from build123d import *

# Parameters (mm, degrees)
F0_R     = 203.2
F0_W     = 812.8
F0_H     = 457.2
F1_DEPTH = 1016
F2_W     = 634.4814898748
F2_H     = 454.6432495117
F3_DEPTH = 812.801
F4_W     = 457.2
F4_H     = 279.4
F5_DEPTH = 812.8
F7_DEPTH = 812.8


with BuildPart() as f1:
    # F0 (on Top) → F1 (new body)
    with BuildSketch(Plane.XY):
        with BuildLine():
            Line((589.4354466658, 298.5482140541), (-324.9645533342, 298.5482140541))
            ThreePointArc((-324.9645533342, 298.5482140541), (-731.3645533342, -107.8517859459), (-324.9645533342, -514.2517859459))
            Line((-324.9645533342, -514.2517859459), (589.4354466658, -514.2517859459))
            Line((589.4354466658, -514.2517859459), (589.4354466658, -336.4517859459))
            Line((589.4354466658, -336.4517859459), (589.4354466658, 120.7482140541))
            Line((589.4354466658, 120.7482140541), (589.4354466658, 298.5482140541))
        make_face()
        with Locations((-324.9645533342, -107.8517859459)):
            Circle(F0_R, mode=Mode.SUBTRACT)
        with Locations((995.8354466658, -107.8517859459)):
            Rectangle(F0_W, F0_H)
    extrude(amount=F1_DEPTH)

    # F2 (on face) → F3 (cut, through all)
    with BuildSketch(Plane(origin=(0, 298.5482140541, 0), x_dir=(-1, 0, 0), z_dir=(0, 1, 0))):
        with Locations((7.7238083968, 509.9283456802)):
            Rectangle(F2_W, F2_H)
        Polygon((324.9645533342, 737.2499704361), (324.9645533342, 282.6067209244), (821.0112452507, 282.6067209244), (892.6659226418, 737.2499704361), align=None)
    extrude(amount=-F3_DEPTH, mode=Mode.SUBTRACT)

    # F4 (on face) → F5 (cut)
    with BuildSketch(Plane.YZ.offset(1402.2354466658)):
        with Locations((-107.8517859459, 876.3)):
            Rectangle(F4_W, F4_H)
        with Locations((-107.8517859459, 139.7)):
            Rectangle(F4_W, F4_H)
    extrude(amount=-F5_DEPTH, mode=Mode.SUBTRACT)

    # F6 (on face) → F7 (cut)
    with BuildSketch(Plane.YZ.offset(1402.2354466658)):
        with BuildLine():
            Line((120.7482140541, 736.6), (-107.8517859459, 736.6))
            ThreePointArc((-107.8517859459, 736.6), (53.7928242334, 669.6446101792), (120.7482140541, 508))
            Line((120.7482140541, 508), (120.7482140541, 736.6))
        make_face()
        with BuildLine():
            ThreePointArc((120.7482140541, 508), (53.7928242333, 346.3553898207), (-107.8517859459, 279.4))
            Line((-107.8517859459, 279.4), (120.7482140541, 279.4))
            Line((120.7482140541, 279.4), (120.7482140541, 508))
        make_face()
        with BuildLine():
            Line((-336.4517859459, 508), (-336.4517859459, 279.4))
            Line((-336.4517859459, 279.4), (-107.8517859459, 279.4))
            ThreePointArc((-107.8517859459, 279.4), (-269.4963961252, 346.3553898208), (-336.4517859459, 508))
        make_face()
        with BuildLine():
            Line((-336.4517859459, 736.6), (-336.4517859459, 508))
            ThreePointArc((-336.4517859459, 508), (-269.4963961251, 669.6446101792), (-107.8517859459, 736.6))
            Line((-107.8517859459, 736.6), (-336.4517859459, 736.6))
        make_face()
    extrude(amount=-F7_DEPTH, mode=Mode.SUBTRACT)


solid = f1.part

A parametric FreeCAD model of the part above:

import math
import FreeCAD as App
import Part
import Sketcher

V = App.Vector
Q = App.Units.Quantity

doc = App.newDocument("Part")
body = doc.addObject("PartDesign::Body", "Body")

# Sketch on XY plane
sketch1 = body.newObject("Sketcher::SketchObject", "Sketch")
sketch1.AttachmentSupport = (doc.getObject("XY_Plane"), [""])
sketch1.MapMode = "FlatFace"
sketch1.addGeometry([
    Part.LineSegment(V(589.435447, 298.548214, 0), V(-324.964553, 298.548214, 0)),  # 0
    Part.ArcOfCircle(Part.Circle(V(-324.964553, -107.851786, 0), V(0, 0, 1), 406.4), math.radians(90), math.radians(270)),  # 1
    Part.LineSegment(V(-324.964553, -514.251786, 0), V(589.435447, -514.251786, 0)),  # 2
    Part.LineSegment(V(589.435447, -514.251786, 0), V(589.435447, -336.451786, 0)),  # 3
    Part.LineSegment(V(589.435447, -336.451786, 0), V(1402.235447, -336.451786, 0)),  # 4
    Part.LineSegment(V(1402.235447, -336.451786, 0), V(1402.235447, 120.748214, 0)),  # 5
    Part.LineSegment(V(1402.235447, 120.748214, 0), V(589.435447, 120.748214, 0)),  # 6
    Part.LineSegment(V(589.435447, 120.748214, 0), V(589.435447, 298.548214, 0)),  # 7
    Part.Circle(V(-324.964553, -107.851786, 0), V(0, 0, 1), 203.2),  # 8
], False)
sketch1.addConstraint([
    Sketcher.Constraint("Tangent", 0, 2, 1, 1),
    Sketcher.Constraint("Tangent", 1, 2, 2, 1),
    Sketcher.Constraint("Coincident", 2, 2, 3, 1),
    Sketcher.Constraint("Coincident", 3, 2, 4, 1),
    Sketcher.Constraint("Coincident", 4, 2, 5, 1),
    Sketcher.Constraint("Coincident", 5, 2, 6, 1),
    Sketcher.Constraint("Coincident", 6, 2, 7, 1),
    Sketcher.Constraint("Coincident", 7, 2, 0, 1),
    Sketcher.Constraint("Horizontal", 0),
    Sketcher.Constraint("Horizontal", 2),
    Sketcher.Constraint("Vertical", 3),
    Sketcher.Constraint("Horizontal", 4),
    Sketcher.Constraint("Vertical", 5),
    Sketcher.Constraint("Horizontal", 6),
    Sketcher.Constraint("Vertical", 7),
    Sketcher.Constraint("Coincident", 8, 3, 1, 3),
    Sketcher.Constraint("Vertical", 3, 2, 6, 2),
    Sketcher.Constraint("Equal", 3, 7),
    Sketcher.Constraint("Diameter", 8, Q("16 in")),
    Sketcher.Constraint("Radius", 1, Q("16 in")),
    Sketcher.Constraint("DistanceX", 0, 2, 0, 1, Q("36 in")),
    Sketcher.Constraint("DistanceX", 4, 1, 4, 2, Q("32 in")),
    Sketcher.Constraint("DistanceY", 3, 1, 3, 2, Q("7 in")),
    Sketcher.Constraint("DistanceX", 1, 3, -1, 1, Q("324.964553 mm")),
    Sketcher.Constraint("DistanceY", 1, 3, -1, 1, Q("107.851786 mm")),
])
pad1 = body.newObject("PartDesign::Pad", "Pad")
pad1.Profile = sketch1
pad1.Length = Q("40 in")

# Sketch on XZ plane
sketch2 = body.newObject("Sketcher::SketchObject", "Sketch001")
sketch2.AttachmentSupport = (doc.getObject("XZ_Plane"), [""])
sketch2.MapMode = "FlatFace"
sketch2.AttachmentOffset = App.Placement(V(0, 0, -298.548214), App.Rotation())
sketch2.addGeometry([
    Part.LineSegment(V(309.516937, 737.24997, 0), V(309.516937, 282.606721, 0)),
    Part.LineSegment(V(309.516937, 282.606721, 0), V(-821.011245, 282.606721, 0)),
    Part.LineSegment(V(-821.011245, 282.606721, 0), V(-892.665923, 737.24997, 0)),
    Part.LineSegment(V(-892.665923, 737.24997, 0), V(309.516937, 737.24997, 0)),
], False)
sketch2.addConstraint([
    Sketcher.Constraint("Coincident", 0, 2, 1, 1),
    Sketcher.Constraint("Coincident", 1, 2, 2, 1),
    Sketcher.Constraint("Coincident", 2, 2, 3, 1),
    Sketcher.Constraint("Coincident", 3, 2, 0, 1),
    Sketcher.Constraint("Vertical", 0),
    Sketcher.Constraint("Horizontal", 1),
    Sketcher.Constraint("Horizontal", 3),
    Sketcher.Constraint("DistanceX", 1, 2, 1, 1, Q("1130.528182 mm")),
    Sketcher.Constraint("DistanceX", 3, 1, 3, 2, Q("1202.182859 mm")),
    Sketcher.Constraint("DistanceY", 0, 2, 0, 1, Q("454.64325 mm")),
    Sketcher.Constraint("DistanceY", -1, 1, 0, 2, Q("282.606721 mm")),
    Sketcher.Constraint("DistanceX", -1, 1, 0, 2, Q("309.516937 mm")),
])
pocket1 = body.newObject("PartDesign::Pocket", "Pocket")
pocket1.Profile = sketch2
pocket1.Type = "ThroughAll"
pocket1.Reversed = True

# Sketch on YZ plane
sketch3 = body.newObject("Sketcher::SketchObject", "Sketch002")
sketch3.AttachmentSupport = (doc.getObject("YZ_Plane"), [""])
sketch3.MapMode = "FlatFace"
sketch3.AttachmentOffset = App.Placement(V(0, 0, 1402.235447), App.Rotation())
sketch3.addGeometry([
    Part.LineSegment(V(-336.451786, 1016, 0), V(-336.451786, 736.6, 0)),  # 0
    Part.LineSegment(V(-336.451786, 736.6, 0), V(120.748214, 736.6, 0)),  # 1
    Part.LineSegment(V(120.748214, 736.6, 0), V(120.748214, 1016, 0)),  # 2
    Part.LineSegment(V(120.748214, 1016, 0), V(-336.451786, 1016, 0)),  # 3
    Part.LineSegment(V(-336.451786, 279.4, 0), V(-336.451786, 0, 0)),  # 4
    Part.LineSegment(V(-336.451786, 0, 0), V(120.748214, 0, 0)),  # 5
    Part.LineSegment(V(120.748214, 0, 0), V(120.748214, 279.4, 0)),  # 6
    Part.LineSegment(V(120.748214, 279.4, 0), V(-336.451786, 279.4, 0)),  # 7
], False)
sketch3.addConstraint([
    Sketcher.Constraint("Coincident", 0, 2, 1, 1),
    Sketcher.Constraint("Coincident", 1, 2, 2, 1),
    Sketcher.Constraint("Coincident", 2, 2, 3, 1),
    Sketcher.Constraint("Coincident", 3, 2, 0, 1),
    Sketcher.Constraint("Coincident", 4, 2, 5, 1),
    Sketcher.Constraint("Coincident", 5, 2, 6, 1),
    Sketcher.Constraint("Coincident", 6, 2, 7, 1),
    Sketcher.Constraint("Coincident", 7, 2, 4, 1),
    Sketcher.Constraint("Vertical", 0),
    Sketcher.Constraint("Horizontal", 1),
    Sketcher.Constraint("Vertical", 2),
    Sketcher.Constraint("Horizontal", 3),
    Sketcher.Constraint("Vertical", 4),
    Sketcher.Constraint("Horizontal", 5),
    Sketcher.Constraint("Vertical", 6),
    Sketcher.Constraint("Horizontal", 7),
    Sketcher.Constraint("PointOnObject", 4, 2, -1),
    Sketcher.Constraint("Vertical", 3, 2, 4, 2),
    Sketcher.Constraint("Vertical", 2, 2, 5, 2),
    Sketcher.Constraint("Equal", 2, 4),
    Sketcher.Constraint("DistanceX", 1, 1, 1, 2, Q("18 in")),
    Sketcher.Constraint("DistanceY", 0, 2, 0, 1, Q("11 in")),
    Sketcher.Constraint("DistanceY", -1, 1, 0, 2, Q("29 in")),
    Sketcher.Constraint("DistanceX", 0, 2, -1, 1, Q("336.451786 mm")),
])
pocket2 = body.newObject("PartDesign::Pocket", "Pocket001")
pocket2.Profile = sketch3
pocket2.Length = Q("32 in")

# Sketch on YZ plane
sketch4 = body.newObject("Sketcher::SketchObject", "Sketch003")
sketch4.AttachmentSupport = (doc.getObject("YZ_Plane"), [""])
sketch4.MapMode = "FlatFace"
sketch4.AttachmentOffset = App.Placement(V(0, 0, 1402.235447), App.Rotation())
sketch4.addGeometry([
    Part.LineSegment(V(120.748214, 736.6, 0), V(-107.851786, 736.6, 0)),  # 0
    Part.ArcOfCircle(Part.Circle(V(-107.851786, 508, 0), V(0, 0, 1), 228.6), math.radians(0), math.radians(90)),  # 1
    Part.LineSegment(V(120.748214, 508, 0), V(120.748214, 736.6, 0)),  # 2
    Part.ArcOfCircle(Part.Circle(V(-107.851786, 508, 0), V(0, 0, 1), 228.6), math.radians(-90), math.radians(0)),  # 3
    Part.LineSegment(V(-107.851786, 279.4, 0), V(120.748214, 279.4, 0)),  # 4
    Part.LineSegment(V(120.748214, 279.4, 0), V(120.748214, 508, 0)),  # 5
    Part.LineSegment(V(-336.451786, 508, 0), V(-336.451786, 279.4, 0)),  # 6
    Part.LineSegment(V(-336.451786, 279.4, 0), V(-107.851786, 279.4, 0)),  # 7
    Part.ArcOfCircle(Part.Circle(V(-107.851786, 508, 0), V(0, 0, 1), 228.6), math.radians(180), math.radians(270)),  # 8
    Part.LineSegment(V(-336.451786, 736.6, 0), V(-336.451786, 508, 0)),  # 9
    Part.ArcOfCircle(Part.Circle(V(-107.851786, 508, 0), V(0, 0, 1), 228.6), math.radians(90), math.radians(180)),  # 10
    Part.LineSegment(V(-107.851786, 736.6, 0), V(-336.451786, 736.6, 0)),  # 11
], False)
sketch4.addConstraint([
    Sketcher.Constraint("Tangent", 0, 2, 1, 2),
    Sketcher.Constraint("Tangent", 1, 1, 2, 1),
    Sketcher.Constraint("Coincident", 2, 2, 0, 1),
    Sketcher.Constraint("Tangent", 3, 1, 4, 1),
    Sketcher.Constraint("Coincident", 4, 2, 5, 1),
    Sketcher.Constraint("Tangent", 5, 2, 3, 2),
    Sketcher.Constraint("Coincident", 6, 2, 7, 1),
    Sketcher.Constraint("Tangent", 7, 2, 8, 2),
    Sketcher.Constraint("Tangent", 8, 1, 6, 1),
    Sketcher.Constraint("Tangent", 9, 2, 10, 2),
    Sketcher.Constraint("Tangent", 10, 1, 11, 1),
    Sketcher.Constraint("Coincident", 11, 2, 9, 1),
    Sketcher.Constraint("Horizontal", 0),
    Sketcher.Constraint("Vertical", 2),
    Sketcher.Constraint("Horizontal", 4),
    Sketcher.Constraint("Vertical", 5),
    Sketcher.Constraint("Vertical", 6),
    Sketcher.Constraint("Horizontal", 7),
    Sketcher.Constraint("Vertical", 9),
    Sketcher.Constraint("Horizontal", 11),
    Sketcher.Constraint("Coincident", 3, 3, 1, 3),
    Sketcher.Constraint("Coincident", 8, 3, 1, 3),
    Sketcher.Constraint("Coincident", 10, 3, 1, 3),
    Sketcher.Constraint("Equal", 1, 3),
    Sketcher.Constraint("Equal", 3, 8),
    Sketcher.Constraint("Equal", 8, 10),
    Sketcher.Constraint("Radius", 1, Q("9 in")),
    Sketcher.Constraint("DistanceY", -1, 1, 1, 3, Q("20 in")),
    Sketcher.Constraint("DistanceX", 1, 3, -1, 1, Q("107.851786 mm")),
])
pocket3 = body.newObject("PartDesign::Pocket", "Pocket002")
pocket3.Profile = sketch4
pocket3.Length = Q("32 in")

doc.recompute()
